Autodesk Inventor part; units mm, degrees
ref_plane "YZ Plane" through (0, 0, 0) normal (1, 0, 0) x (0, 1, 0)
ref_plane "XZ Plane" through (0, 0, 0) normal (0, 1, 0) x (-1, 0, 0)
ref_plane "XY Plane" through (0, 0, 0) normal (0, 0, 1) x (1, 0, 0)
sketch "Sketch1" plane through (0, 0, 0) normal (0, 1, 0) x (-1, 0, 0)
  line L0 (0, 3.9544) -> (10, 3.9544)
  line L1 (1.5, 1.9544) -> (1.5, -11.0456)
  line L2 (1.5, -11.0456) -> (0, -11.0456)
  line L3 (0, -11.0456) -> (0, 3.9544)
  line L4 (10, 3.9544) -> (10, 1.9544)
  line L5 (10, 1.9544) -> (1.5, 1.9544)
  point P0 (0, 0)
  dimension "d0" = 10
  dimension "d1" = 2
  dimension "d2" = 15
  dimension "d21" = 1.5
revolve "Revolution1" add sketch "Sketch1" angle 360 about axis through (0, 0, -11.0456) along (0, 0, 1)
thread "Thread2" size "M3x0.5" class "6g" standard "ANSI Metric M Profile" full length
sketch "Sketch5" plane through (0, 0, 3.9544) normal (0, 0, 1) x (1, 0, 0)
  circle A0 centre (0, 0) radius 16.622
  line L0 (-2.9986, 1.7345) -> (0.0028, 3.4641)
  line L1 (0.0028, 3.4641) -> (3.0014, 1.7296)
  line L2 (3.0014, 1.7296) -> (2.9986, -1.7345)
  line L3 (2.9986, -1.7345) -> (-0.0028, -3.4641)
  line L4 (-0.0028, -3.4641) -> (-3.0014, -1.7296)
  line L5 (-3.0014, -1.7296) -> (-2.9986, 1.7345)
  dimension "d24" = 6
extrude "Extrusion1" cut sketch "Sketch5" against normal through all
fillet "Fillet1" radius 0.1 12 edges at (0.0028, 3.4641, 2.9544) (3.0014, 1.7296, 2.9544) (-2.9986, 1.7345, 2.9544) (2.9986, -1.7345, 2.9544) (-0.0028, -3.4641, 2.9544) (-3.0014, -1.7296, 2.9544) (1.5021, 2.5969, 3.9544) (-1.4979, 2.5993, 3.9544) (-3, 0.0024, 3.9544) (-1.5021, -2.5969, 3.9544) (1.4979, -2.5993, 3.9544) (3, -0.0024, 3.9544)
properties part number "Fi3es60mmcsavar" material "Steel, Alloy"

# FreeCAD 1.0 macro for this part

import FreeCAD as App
import Part
import Sketcher

V = App.Vector
Q = App.Units.Quantity


def edges_at(feature, points):
    """Names of the edges that pass closest to the given points."""
    edges = feature.Shape.Edges
    near = lambda p: min(range(len(edges)), key=lambda i: edges[i].distToShape(Part.Vertex(*p))[0])
    return sorted({f"Edge{near(p) + 1}" for p in points})


def add_polygon(sketch, points):
    """Adds a closed chain of lines whose ends are joined by coincident constraints."""
    first, n = sketch.GeometryCount, len(points)
    for a, b in zip(points, points[1:] + points[:1]):
        sketch.addGeometry(Part.LineSegment(App.Vector(*a, 0), App.Vector(*b, 0)), False)
    for i in range(n):
        sketch.addConstraint(Sketcher.Constraint("Coincident", first + i, 2, first + (i + 1) % n, 1))

doc = App.newDocument("Part")
body = doc.addObject("PartDesign::Body", "Body")

# Sketch on XZ plane
sketch1 = body.newObject("Sketcher::SketchObject", "Sketch")
sketch1.AttachmentSupport = (doc.getObject("XZ_Plane"), [""])
sketch1.MapMode = "FlatFace"
add_polygon(sketch1, [(-10, 4), (0, 4), (0, -11), (-1.5, -11), (-1.5, 2), (-10, 2)])  # lines 0-5
sketch1.addConstraint([
    Sketcher.Constraint("Horizontal", 0),
    Sketcher.Constraint("Vertical", 1),
    Sketcher.Constraint("Horizontal", 2),
    Sketcher.Constraint("Vertical", 3),
    Sketcher.Constraint("Horizontal", 4),
    Sketcher.Constraint("Vertical", 5),
    Sketcher.Constraint("PointOnObject", 0, 2, -2),
    Sketcher.Constraint("DistanceX", 0, 1, 0, 2, Q("10 mm")),
    Sketcher.Constraint("DistanceY", 1, 2, 1, 1, Q("15 mm")),
    Sketcher.Constraint("DistanceY", 5, 1, 5, 2, Q("2 mm")),
    Sketcher.Constraint("DistanceX", 2, 2, 2, 1, Q("1.5 mm")),
    Sketcher.Constraint("DistanceY", -1, 1, 0, 2, Q("3.9544 mm")),
])
revolution = body.newObject("PartDesign::Revolution", "Revolution")
revolution.Profile = sketch1
revolution.ReferenceAxis = (sketch1, ["V_Axis"])
revolution.Angle = 360

# Sketch on XY plane
sketch2 = body.newObject("Sketcher::SketchObject", "Sketch001")
sketch2.AttachmentSupport = (doc.getObject("XY_Plane"), [""])
sketch2.MapMode = "FlatFace"
sketch2.AttachmentOffset = App.Placement(V(0, 0, 3.9544), App.Rotation())
sketch2.addGeometry(Part.Circle(V(0, 0, 0), V(0, 0, 1), 16.6), False)  # 0
add_polygon(sketch2, [(-3, -1.7), (-3, 1.7), (0, 3.5), (3, 1.7), (3, -1.7), (0, -3.5)])  # lines 1-6
sketch2.addConstraint([
    Sketcher.Constraint("Coincident", 0, 3, -1, 1),
    Sketcher.Constraint("Symmetric", 1, 2, 4, 2, -1, 1),
    Sketcher.Constraint("Symmetric", 2, 2, 5, 2, -1, 1),
    Sketcher.Constraint("Symmetric", 3, 2, 6, 2, -1, 1),
    Sketcher.Constraint("Equal", 1, 2),
    Sketcher.Constraint("Equal", 2, 3),
    Sketcher.Constraint("DistanceX", 1, 2, 3, 2, Q("6 mm")),
    Sketcher.Constraint("Diameter", 0, Q("33.244 mm")),
    Sketcher.Constraint("Distance", 1, Q("3.464 mm")),
    Sketcher.Constraint("DistanceY", 3, 2, 1, 2, Q("0.005 mm")),
    Sketcher.Constraint("DistanceX", 1, 2, -1, 1, Q("2.9986 mm")),
])
pocket1 = body.newObject("PartDesign::Pocket", "Pocket")
pocket1.Profile = sketch2
pocket1.Type = "ThroughAll"
doc.recompute()

fillet = body.newObject("PartDesign::Fillet", "Fillet")
fillet.Base = (pocket1, edges_at(pocket1, [
    (0.003, 3.464, 2.954),
    (3.001, 1.73, 2.954),
    (-2.999, 1.734, 2.954),
    (2.999, -1.734, 2.954),
    (-0.003, -3.464, 2.954),
    (-3.001, -1.73, 2.954),
    (1.502, 2.597, 3.954),
    (-1.498, 2.599, 3.954),
    (-3, 0.002, 3.954),
    (-1.502, -2.597, 3.954),
    (1.498, -2.599, 3.954),
    (3, -0.002, 3.954),
]))
fillet.Radius = 0.1

doc.recompute()
